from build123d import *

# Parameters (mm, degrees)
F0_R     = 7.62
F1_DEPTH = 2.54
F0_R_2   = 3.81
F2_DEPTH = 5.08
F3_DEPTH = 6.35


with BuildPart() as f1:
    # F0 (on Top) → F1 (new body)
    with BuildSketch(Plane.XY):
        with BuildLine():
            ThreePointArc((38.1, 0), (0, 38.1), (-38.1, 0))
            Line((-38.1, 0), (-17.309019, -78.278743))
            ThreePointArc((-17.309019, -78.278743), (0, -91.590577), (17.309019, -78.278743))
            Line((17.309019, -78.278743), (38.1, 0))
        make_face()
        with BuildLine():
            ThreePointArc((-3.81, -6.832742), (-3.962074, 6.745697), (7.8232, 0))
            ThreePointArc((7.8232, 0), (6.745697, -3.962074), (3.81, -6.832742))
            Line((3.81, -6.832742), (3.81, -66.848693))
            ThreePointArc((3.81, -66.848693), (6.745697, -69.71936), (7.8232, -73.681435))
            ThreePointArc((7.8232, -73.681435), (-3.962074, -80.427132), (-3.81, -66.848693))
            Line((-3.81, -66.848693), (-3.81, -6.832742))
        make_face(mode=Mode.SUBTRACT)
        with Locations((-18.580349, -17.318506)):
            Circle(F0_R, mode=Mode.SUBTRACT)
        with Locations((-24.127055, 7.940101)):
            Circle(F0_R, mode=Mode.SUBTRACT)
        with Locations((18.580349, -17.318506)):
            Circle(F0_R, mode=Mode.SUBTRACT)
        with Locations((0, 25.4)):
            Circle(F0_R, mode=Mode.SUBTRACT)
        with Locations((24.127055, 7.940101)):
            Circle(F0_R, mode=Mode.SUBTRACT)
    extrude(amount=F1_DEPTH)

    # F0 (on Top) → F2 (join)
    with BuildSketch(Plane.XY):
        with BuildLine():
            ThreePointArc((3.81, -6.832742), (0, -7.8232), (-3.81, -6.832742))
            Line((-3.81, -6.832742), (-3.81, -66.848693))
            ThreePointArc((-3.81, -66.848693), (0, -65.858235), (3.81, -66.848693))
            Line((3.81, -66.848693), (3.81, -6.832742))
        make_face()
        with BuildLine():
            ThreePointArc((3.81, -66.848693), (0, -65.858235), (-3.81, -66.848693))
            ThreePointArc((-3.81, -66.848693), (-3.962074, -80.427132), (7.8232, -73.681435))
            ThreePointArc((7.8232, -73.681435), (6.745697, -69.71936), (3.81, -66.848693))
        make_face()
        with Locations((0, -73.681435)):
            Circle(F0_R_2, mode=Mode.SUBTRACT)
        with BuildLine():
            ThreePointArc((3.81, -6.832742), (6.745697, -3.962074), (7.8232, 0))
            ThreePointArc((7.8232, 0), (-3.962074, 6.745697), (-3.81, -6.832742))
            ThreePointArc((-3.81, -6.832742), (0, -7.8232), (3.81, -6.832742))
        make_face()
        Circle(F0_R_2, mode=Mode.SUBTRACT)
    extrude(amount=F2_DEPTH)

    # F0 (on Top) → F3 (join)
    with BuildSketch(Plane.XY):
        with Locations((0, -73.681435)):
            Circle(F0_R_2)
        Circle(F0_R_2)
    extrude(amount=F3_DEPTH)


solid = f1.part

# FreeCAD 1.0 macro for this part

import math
import FreeCAD as App
import Part
import Sketcher
from FreeCAD import Vector
Q = App.Units.Quantity

doc = App.newDocument("Part")
body = doc.addObject("PartDesign::Body", "Body")

sketch1 = doc.addObject("Sketcher::SketchObject", "Sketch")
body.addObject(sketch1)
sketch1.AttachmentSupport = (doc.XY_Plane, [""])
sketch1.MapMode = "FlatFace"
sketch1.addGeometry(Part.ArcOfCircle(Part.Circle(Vector(0, 0, 0), Vector(0, 0, 1), 38), math.radians(0), math.radians(180)), False)
sketch1.addGeometry(Part.LineSegment(Vector(-38, 0, 0), Vector(-17, -78, 0)), False)
sketch1.addGeometry(Part.ArcOfCircle(Part.Circle(Vector(0, -74, 0), Vector(0, 0, 1), 18), math.radians(-165), math.radians(-15)), False)
sketch1.addGeometry(Part.LineSegment(Vector(17, -78, 0), Vector(38, 0, 0)), False)
sketch1.addGeometry(Part.LineSegment(Vector(-4, -67, 0), Vector(-4, -7, 0)), False)
sketch1.addGeometry(Part.ArcOfCircle(Part.Circle(Vector(0, 0, 0), Vector(0, 0, 1), 8), math.radians(0), math.radians(241)), False)
sketch1.addGeometry(Part.ArcOfCircle(Part.Circle(Vector(0, 0, 0), Vector(0, 0, 1), 8), math.radians(-61), math.radians(0)), False)
sketch1.addGeometry(Part.LineSegment(Vector(4, -7, 0), Vector(4, -67, 0)), False)
sketch1.addGeometry(Part.ArcOfCircle(Part.Circle(Vector(0, -74, 0), Vector(0, 0, 1), 8), math.radians(0), math.radians(61)), False)
sketch1.addGeometry(Part.ArcOfCircle(Part.Circle(Vector(0, -74, 0), Vector(0, 0, 1), 8), math.radians(119), math.radians(360)), False)
sketch1.addGeometry(Part.Circle(Vector(-19, -17, 0), Vector(0, 0, 1), 8), False)
sketch1.addGeometry(Part.Circle(Vector(-24, 8, 0), Vector(0, 0, 1), 8), False)
sketch1.addGeometry(Part.Circle(Vector(0, 25, 0), Vector(0, 0, 1), 8), False)
sketch1.addGeometry(Part.Circle(Vector(19, -17, 0), Vector(0, 0, 1), 8), False)
sketch1.addGeometry(Part.Circle(Vector(24, 8, 0), Vector(0, 0, 1), 8), False)
sketch1.addConstraint(Sketcher.Constraint("Coincident", 0, 2, 1, 1))
sketch1.addConstraint(Sketcher.Constraint("Tangent", 1, 2, 2, 1))
sketch1.addConstraint(Sketcher.Constraint("Tangent", 2, 2, 3, 1))
sketch1.addConstraint(Sketcher.Constraint("Coincident", 3, 2, 0, 1))
sketch1.addConstraint(Sketcher.Constraint("Coincident", 4, 2, 5, 2))
sketch1.addConstraint(Sketcher.Constraint("Tangent", 5, 1, 6, 2))
sketch1.addConstraint(Sketcher.Constraint("Coincident", 6, 1, 7, 1))
sketch1.addConstraint(Sketcher.Constraint("Coincident", 7, 2, 8, 2))
sketch1.addConstraint(Sketcher.Constraint("Tangent", 8, 1, 9, 2))
sketch1.addConstraint(Sketcher.Constraint("Coincident", 9, 1, 4, 1))
sketch1.addConstraint(Sketcher.Constraint("Vertical", 4))
sketch1.addConstraint(Sketcher.Constraint("Vertical", 7))
sketch1.addConstraint(Sketcher.Constraint("Coincident", 0, 3, -1, 1))
sketch1.addConstraint(Sketcher.Constraint("Coincident", 5, 3, -1, 1))
sketch1.addConstraint(Sketcher.Constraint("Coincident", 8, 3, 2, 3))
sketch1.addConstraint(Sketcher.Constraint("Equal", 5, 6))
sketch1.addConstraint(Sketcher.Constraint("Equal", 6, 9))
sketch1.addConstraint(Sketcher.Constraint("Equal", 10, 11))
sketch1.addConstraint(Sketcher.Constraint("Equal", 11, 12))
sketch1.addConstraint(Sketcher.Constraint("Equal", 12, 13))
sketch1.addConstraint(Sketcher.Constraint("Equal", 13, 14))
sketch1.addConstraint(Sketcher.Constraint("Symmetric", 10, 3, 13, 3, -2))
sketch1.addConstraint(Sketcher.Constraint("Symmetric", 11, 3, 14, 3, -2))
sketch1.addConstraint(Sketcher.Constraint("Symmetric", 1, 2, 2, 2, -2))
sketch1.addConstraint(Sketcher.Constraint("Symmetric", 7, 2, 9, 1, -2))
sketch1.addConstraint(Sketcher.Constraint("PointOnObject", 12, 3, -2))
sketch1.addConstraint(Sketcher.Constraint("PointOnObject", 0, 2, -1))
sketch1.addConstraint(Sketcher.Constraint("PointOnObject", 5, 1, -1))
sketch1.addConstraint(Sketcher.Constraint("Horizontal", 9, 3, 8, 1))
sketch1.addConstraint(Sketcher.Constraint("Diameter", 10, Q("0.6 in")))
sketch1.addConstraint(Sketcher.Constraint("Radius", 0, Q("1.5 in")))
sketch1.addConstraint(Sketcher.Constraint("DistanceY", -1, 1, 12, 3, Q("1 in")))
sketch1.addConstraint(Sketcher.Constraint("Radius", 5, Q("0.308 in")))
sketch1.addConstraint(Sketcher.Constraint("DistanceX", 4, 2, 6, 1, Q("0.3 in")))
sketch1.addConstraint(Sketcher.Constraint("Radius", 2, 17.909142))
sketch1.addConstraint(Sketcher.Constraint("DistanceY", 4, 1, 4, 2, 60.015951))
sketch1.addConstraint(Sketcher.Constraint("DistanceY", -1, 1, 11, 3, 7.940101))
sketch1.addConstraint(Sketcher.Constraint("DistanceX", 10, 3, -1, 1, 18.580349))
sketch1.addConstraint(Sketcher.Constraint("DistanceY", 2, 3, 10, 3, 56.362929))
sketch1.addConstraint(Sketcher.Constraint("DistanceX", 11, 3, -1, 1, 24.127055))
pad1 = doc.addObject("PartDesign::Pad", "Pad")
body.addObject(pad1)
pad1.Profile = sketch1
pad1.Length = Q("0.1 in")

sketch2 = doc.addObject("Sketcher::SketchObject", "Sketch001")
body.addObject(sketch2)
sketch2.AttachmentSupport = (doc.XY_Plane, [""])
sketch2.MapMode = "FlatFace"
sketch2.addGeometry(Part.LineSegment(Vector(3.8, -66.8, 0), Vector(3.8, -6.8, 0)), False)
sketch2.addGeometry(Part.ArcOfCircle(Part.Circle(Vector(0, 0, 0), Vector(0, 0, 1), 7.8), math.radians(-61), math.radians(0)), False)
sketch2.addGeometry(Part.ArcOfCircle(Part.Circle(Vector(0, 0, 0), Vector(0, 0, 1), 7.8), math.radians(0), math.radians(241)), False)
sketch2.addGeometry(Part.LineSegment(Vector(-3.8, -6.8, 0), Vector(-3.8, -66.8, 0)), False)
sketch2.addGeometry(Part.ArcOfCircle(Part.Circle(Vector(0, -73.7, 0), Vector(0, 0, 1), 7.8), math.radians(119), math.radians(360)), False)
sketch2.addGeometry(Part.ArcOfCircle(Part.Circle(Vector(0, -73.7, 0), Vector(0, 0, 1), 7.8), math.radians(0), math.radians(61)), False)
sketch2.addGeometry(Part.Circle(Vector(0, -73.7, 0), Vector(0, 0, 1), 3.8), False)
sketch2.addGeometry(Part.Circle(Vector(0, 0, 0), Vector(0, 0, 1), 3.8), False)
sketch2.addConstraint(Sketcher.Constraint("Coincident", 0, 2, 1, 1))
sketch2.addConstraint(Sketcher.Constraint("Tangent", 1, 2, 2, 1))
sketch2.addConstraint(Sketcher.Constraint("Coincident", 2, 2, 3, 1))
sketch2.addConstraint(Sketcher.Constraint("Coincident", 3, 2, 4, 1))
sketch2.addConstraint(Sketcher.Constraint("Tangent", 4, 2, 5, 1))
sketch2.addConstraint(Sketcher.Constraint("Coincident", 5, 2, 0, 1))
sketch2.addConstraint(Sketcher.Constraint("Vertical", 0))
sketch2.addConstraint(Sketcher.Constraint("Vertical", 3))
sketch2.addConstraint(Sketcher.Constraint("Coincident", 1, 3, -1, 1))
sketch2.addConstraint(Sketcher.Constraint("Coincident", 7, 3, -1, 1))
sketch2.addConstraint(Sketcher.Constraint("Coincident", 6, 3, 4, 3))
sketch2.addConstraint(Sketcher.Constraint("Equal", 1, 2))
sketch2.addConstraint(Sketcher.Constraint("Equal", 2, 4))
sketch2.addConstraint(Sketcher.Constraint("Equal", 6, 7))
sketch2.addConstraint(Sketcher.Constraint("Symmetric", 3, 2, 5, 2, -2))
sketch2.addConstraint(Sketcher.Constraint("PointOnObject", 4, 3, -2))
sketch2.addConstraint(Sketcher.Constraint("PointOnObject", 1, 2, -1))
sketch2.addConstraint(Sketcher.Constraint("Horizontal", 6, 3, 4, 2))
sketch2.addConstraint(Sketcher.Constraint("Diameter", 6, Q("0.3 in")))
sketch2.addConstraint(Sketcher.Constraint("Radius", 1, Q("0.308 in")))
sketch2.addConstraint(Sketcher.Constraint("DistanceX", 2, 2, 0, 2, Q("0.3 in")))
sketch2.addConstraint(Sketcher.Constraint("DistanceY", 0, 1, 0, 2, 60.015951))
pad2 = doc.addObject("PartDesign::Pad", "Pad001")
body.addObject(pad2)
pad2.Profile = sketch2
pad2.Length = Q("0.2 in")

sketch3 = doc.addObject("Sketcher::SketchObject", "Sketch002")
body.addObject(sketch3)
sketch3.AttachmentSupport = (doc.XY_Plane, [""])
sketch3.MapMode = "FlatFace"
sketch3.addGeometry(Part.Circle(Vector(0, -73.7, 0), Vector(0, 0, 1), 3.8), False)
sketch3.addGeometry(Part.Circle(Vector(0, 0, 0), Vector(0, 0, 1), 3.8), False)
sketch3.addConstraint(Sketcher.Constraint("Coincident", 1, 3, -1, 1))
sketch3.addConstraint(Sketcher.Constraint("Equal", 0, 1))
sketch3.addConstraint(Sketcher.Constraint("PointOnObject", 0, 3, -2))
sketch3.addConstraint(Sketcher.Constraint("Diameter", 0, Q("0.3 in")))
sketch3.addConstraint(Sketcher.Constraint("DistanceY", 0, 3, -1, 1, 73.681435))
pad3 = doc.addObject("PartDesign::Pad", "Pad002")
body.addObject(pad3)
pad3.Profile = sketch3
pad3.Length = Q("0.25 in")

doc.recompute()
